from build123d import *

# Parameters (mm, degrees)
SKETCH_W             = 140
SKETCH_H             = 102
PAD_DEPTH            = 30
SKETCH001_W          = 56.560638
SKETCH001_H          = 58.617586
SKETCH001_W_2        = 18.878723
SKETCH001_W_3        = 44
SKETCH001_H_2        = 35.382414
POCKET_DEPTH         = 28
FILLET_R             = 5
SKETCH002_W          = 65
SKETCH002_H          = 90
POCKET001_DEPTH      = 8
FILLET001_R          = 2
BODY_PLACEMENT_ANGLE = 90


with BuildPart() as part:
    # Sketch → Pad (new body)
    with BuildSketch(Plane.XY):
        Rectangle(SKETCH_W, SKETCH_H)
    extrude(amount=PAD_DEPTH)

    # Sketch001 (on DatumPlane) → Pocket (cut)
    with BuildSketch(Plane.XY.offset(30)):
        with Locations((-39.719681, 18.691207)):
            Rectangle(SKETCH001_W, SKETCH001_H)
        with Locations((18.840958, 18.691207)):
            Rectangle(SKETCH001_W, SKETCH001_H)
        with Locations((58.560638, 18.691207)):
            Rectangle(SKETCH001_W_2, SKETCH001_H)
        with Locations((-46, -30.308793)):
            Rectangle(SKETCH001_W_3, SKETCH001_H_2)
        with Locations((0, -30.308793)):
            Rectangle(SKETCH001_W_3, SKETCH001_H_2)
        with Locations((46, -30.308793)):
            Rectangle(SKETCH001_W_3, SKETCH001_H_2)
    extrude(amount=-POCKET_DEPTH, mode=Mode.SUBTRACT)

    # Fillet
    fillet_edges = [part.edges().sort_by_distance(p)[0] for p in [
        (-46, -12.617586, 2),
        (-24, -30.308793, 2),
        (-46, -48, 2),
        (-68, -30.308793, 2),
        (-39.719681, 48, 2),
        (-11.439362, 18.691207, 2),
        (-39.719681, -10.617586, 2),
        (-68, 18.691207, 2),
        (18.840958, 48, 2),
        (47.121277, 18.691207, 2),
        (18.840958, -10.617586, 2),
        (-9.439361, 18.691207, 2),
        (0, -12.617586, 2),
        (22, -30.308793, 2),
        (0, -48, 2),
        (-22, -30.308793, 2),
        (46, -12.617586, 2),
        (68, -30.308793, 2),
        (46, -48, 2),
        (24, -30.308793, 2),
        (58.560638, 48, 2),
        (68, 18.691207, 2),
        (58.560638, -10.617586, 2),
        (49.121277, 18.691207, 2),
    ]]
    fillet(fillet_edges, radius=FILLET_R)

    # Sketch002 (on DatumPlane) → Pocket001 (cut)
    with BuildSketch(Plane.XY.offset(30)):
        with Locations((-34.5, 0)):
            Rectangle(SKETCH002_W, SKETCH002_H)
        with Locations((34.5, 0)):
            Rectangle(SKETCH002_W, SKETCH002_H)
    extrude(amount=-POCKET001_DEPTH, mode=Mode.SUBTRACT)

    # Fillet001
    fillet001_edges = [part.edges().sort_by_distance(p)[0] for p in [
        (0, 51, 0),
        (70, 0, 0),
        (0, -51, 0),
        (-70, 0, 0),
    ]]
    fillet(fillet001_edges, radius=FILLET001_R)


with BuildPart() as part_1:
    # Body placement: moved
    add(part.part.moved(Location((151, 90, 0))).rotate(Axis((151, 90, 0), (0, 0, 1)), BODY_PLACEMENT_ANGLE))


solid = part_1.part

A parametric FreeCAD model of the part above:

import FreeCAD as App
import Part
import Sketcher
from FreeCAD import Vector
Q = App.Units.Quantity


def edges_at(feature, points):
    """Names of the edges that pass closest to the given points."""
    edges = feature.Shape.Edges
    near = lambda p: min(range(len(edges)), key=lambda i: edges[i].distToShape(Part.Vertex(*p))[0])
    return sorted({f"Edge{near(p) + 1}" for p in points})

doc = App.newDocument("Part")
params = doc.addObject("Spreadsheet::Sheet", "Params")
for row, (alias, value) in enumerate([
    ("sketch1_width", "140 mm"),
    ("sketch1_height", "102 mm"),
    ("pad1_length", "30 mm"),
    ("sketch2_width", "44 mm"),
    ("pocket1_length", "28 mm"),
    ("fillet_radius", "5 mm"),
    ("sketch3_width", "65 mm"),
    ("sketch3_height", "90 mm"),
    ("pocket2_length", "8 mm"),
    ("fillet2_radius", "2 mm"),
], start=1):
    params.set(f"A{row}", alias)
    params.set(f"B{row}", "=" + value)
    params.setAlias(f"B{row}", alias)

body = doc.addObject("PartDesign::Body", "Body")

sketch1 = body.newObject("Sketcher::SketchObject", "Sketch")
sketch1.AttachmentSupport = (doc.getObject("XY_Plane"), [""])
sketch1.MapMode = "FlatFace"
sketch1.addGeometry([
    Part.LineSegment(Vector(-70, 51, 0), Vector(-70, -51, 0)),
    Part.LineSegment(Vector(-70, -51, 0), Vector(70, -51, 0)),
    Part.LineSegment(Vector(70, -51, 0), Vector(70, 51, 0)),
    Part.LineSegment(Vector(70, 51, 0), Vector(-70, 51, 0)),
], False)
sketch1.addConstraint([
    Sketcher.Constraint("Coincident", 0, 2, 1, 1),
    Sketcher.Constraint("Coincident", 1, 2, 2, 1),
    Sketcher.Constraint("Coincident", 2, 2, 3, 1),
    Sketcher.Constraint("Coincident", 3, 2, 0, 1),
    Sketcher.Constraint("Vertical", 0),
    Sketcher.Constraint("Horizontal", 1),
    Sketcher.Constraint("Vertical", 2),
    Sketcher.Constraint("Horizontal", 3),
    Sketcher.Constraint("Symmetric", 0, 2, 2, 2, -1, 1),
    Sketcher.Constraint("DistanceX", 1, 1, 1, 2, Q("140 mm")),
    Sketcher.Constraint("DistanceY", 0, 2, 0, 1, Q("102 mm")),
])
sketch1.setExpression("Constraints[9]", "Params.sketch1_width")
sketch1.setExpression("Constraints[10]", "Params.sketch1_height")
pad1 = body.newObject("PartDesign::Pad", "Pad")
pad1.Profile = sketch1
pad1.setExpression("Length", "Params.pad1_length")

sketch2 = body.newObject("Sketcher::SketchObject", "Sketch001")
sketch2.AttachmentSupport = (doc.getObject("XY_Plane"), [""])
sketch2.MapMode = "FlatFace"
sketch2.AttachmentOffset = App.Placement(Vector(0, 0, 30), App.Rotation())
sketch2.addGeometry([
    Part.LineSegment(Vector(-68, 48, 0), Vector(-68, -10.617586, 0)),
    Part.LineSegment(Vector(-68, -10.617586, 0), Vector(-11.439362, -10.617586, 0)),
    Part.LineSegment(Vector(-11.439362, -10.617586, 0), Vector(-11.439362, 48, 0)),
    Part.LineSegment(Vector(-11.439362, 48, 0), Vector(-68, 48, 0)),
    Part.LineSegment(Vector(-9.439361, 48, 0), Vector(-9.439361, -10.617586, 0)),
    Part.LineSegment(Vector(-9.439361, -10.617586, 0), Vector(47.121277, -10.617586, 0)),
    Part.LineSegment(Vector(47.121277, -10.617586, 0), Vector(47.121277, 48, 0)),
    Part.LineSegment(Vector(47.121277, 48, 0), Vector(-9.439361, 48, 0)),
    Part.LineSegment(Vector(49.121277, 48, 0), Vector(49.121277, -10.617586, 0)),
    Part.LineSegment(Vector(49.121277, -10.617586, 0), Vector(68, -10.617586, 0)),
    Part.LineSegment(Vector(68, -10.617586, 0), Vector(68, 48, 0)),
    Part.LineSegment(Vector(68, 48, 0), Vector(49.121277, 48, 0)),
    Part.LineSegment(Vector(-68, -12.617586, 0), Vector(-68, -48, 0)),
    Part.LineSegment(Vector(-68, -48, 0), Vector(-24, -48, 0)),
    Part.LineSegment(Vector(-24, -48, 0), Vector(-24, -12.617586, 0)),
    Part.LineSegment(Vector(-24, -12.617586, 0), Vector(-68, -12.617586, 0)),
    Part.LineSegment(Vector(-22, -12.617586, 0), Vector(-22, -48, 0)),
    Part.LineSegment(Vector(-22, -48, 0), Vector(22, -48, 0)),
    Part.LineSegment(Vector(22, -48, 0), Vector(22, -12.617586, 0)),
    Part.LineSegment(Vector(22, -12.617586, 0), Vector(-22, -12.617586, 0)),
    Part.LineSegment(Vector(24, -12.617586, 0), Vector(24, -48, 0)),
    Part.LineSegment(Vector(24, -48, 0), Vector(68, -48, 0)),
    Part.LineSegment(Vector(68, -48, 0), Vector(68, -12.617586, 0)),
    Part.LineSegment(Vector(68, -12.617586, 0), Vector(24, -12.617586, 0)),
], False)
sketch2.addConstraint([
    Sketcher.Constraint("Coincident", 0, 2, 1, 1),
    Sketcher.Constraint("Coincident", 1, 2, 2, 1),
    Sketcher.Constraint("Coincident", 2, 2, 3, 1),
    Sketcher.Constraint("Coincident", 3, 2, 0, 1),
    Sketcher.Constraint("Coincident", 4, 2, 5, 1),
    Sketcher.Constraint("Coincident", 5, 2, 6, 1),
    Sketcher.Constraint("Coincident", 6, 2, 7, 1),
    Sketcher.Constraint("Coincident", 7, 2, 4, 1),
    Sketcher.Constraint("Coincident", 8, 2, 9, 1),
    Sketcher.Constraint("Coincident", 9, 2, 10, 1),
    Sketcher.Constraint("Coincident", 10, 2, 11, 1),
    Sketcher.Constraint("Coincident", 11, 2, 8, 1),
    Sketcher.Constraint("Coincident", 12, 2, 13, 1),
    Sketcher.Constraint("Coincident", 13, 2, 14, 1),
    Sketcher.Constraint("Coincident", 14, 2, 15, 1),
    Sketcher.Constraint("Coincident", 15, 2, 12, 1),
    Sketcher.Constraint("Coincident", 16, 2, 17, 1),
    Sketcher.Constraint("Coincident", 17, 2, 18, 1),
    Sketcher.Constraint("Coincident", 18, 2, 19, 1),
    Sketcher.Constraint("Coincident", 19, 2, 16, 1),
    Sketcher.Constraint("Coincident", 20, 2, 21, 1),
    Sketcher.Constraint("Coincident", 21, 2, 22, 1),
    Sketcher.Constraint("Coincident", 22, 2, 23, 1),
    Sketcher.Constraint("Coincident", 23, 2, 20, 1),
    Sketcher.Constraint("Vertical", 0),
    Sketcher.Constraint("Horizontal", 1),
    Sketcher.Constraint("Vertical", 2),
    Sketcher.Constraint("Horizontal", 3),
    Sketcher.Constraint("Vertical", 4),
    Sketcher.Constraint("Horizontal", 5),
    Sketcher.Constraint("Vertical", 6),
    Sketcher.Constraint("Horizontal", 7),
    Sketcher.Constraint("Vertical", 8),
    Sketcher.Constraint("Horizontal", 9),
    Sketcher.Constraint("Vertical", 10),
    Sketcher.Constraint("Horizontal", 11),
    Sketcher.Constraint("Vertical", 12),
    Sketcher.Constraint("Horizontal", 13),
    Sketcher.Constraint("Vertical", 14),
    Sketcher.Constraint("Horizontal", 15),
    Sketcher.Constraint("Vertical", 16),
    Sketcher.Constraint("Horizontal", 17),
    Sketcher.Constraint("Vertical", 18),
    Sketcher.Constraint("Horizontal", 19),
    Sketcher.Constraint("Vertical", 20),
    Sketcher.Constraint("Horizontal", 21),
    Sketcher.Constraint("Vertical", 22),
    Sketcher.Constraint("Horizontal", 23),
    Sketcher.Constraint("Symmetric", 10, 2, 12, 2, -1, 1),
    Sketcher.Constraint("Symmetric", 3, 2, 21, 2, -1, 1),
    Sketcher.Constraint("Symmetric", 0, 2, 9, 2, -2),
    Sketcher.Constraint("Symmetric", 13, 2, 20, 2, -2),
    Sketcher.Constraint("Horizontal", 1, 2, 4, 2),
    Sketcher.Constraint("Horizontal", 3, 2, 6, 2),
    Sketcher.Constraint("Horizontal", 13, 2, 16, 2),
    Sketcher.Constraint("Horizontal", 15, 2, 18, 2),
    Sketcher.Constraint("Horizontal", 19, 2, 22, 2),
    Sketcher.Constraint("Equal", 3, 5),
    Sketcher.Constraint("Equal", 15, 17),
    Sketcher.Constraint("DistanceX", 13, 1, 13, 2, Q("44 mm")),
    Sketcher.Constraint("DistanceX", 0, 2, -1, 1, Q("68 mm")),
    Sketcher.Constraint("DistanceY", -1, 1, 2, 2, Q("48 mm")),
    Sketcher.Constraint("DistanceX", 16, 2, -1, 1, Q("22 mm")),
    Sketcher.Constraint("DistanceX", 1, 2, 4, 2, Q("2.000001 mm")),
    Sketcher.Constraint("DistanceX", 5, 2, 8, 2, Q("2 mm")),
    Sketcher.Constraint("DistanceY", 14, 2, 1, 2, Q("2 mm")),
    Sketcher.Constraint("DistanceX", 1, 1, 1, 2, Q("56.560638 mm")),
    Sketcher.Constraint("DistanceY", 0, 2, 0, 1, Q("58.617586 mm")),
])
sketch2.setExpression("Constraints[59]", "Params.sketch2_width")
pocket1 = body.newObject("PartDesign::Pocket", "Pocket")
pocket1.Profile = sketch2
pocket1.setExpression("Length", "Params.pocket1_length")
doc.recompute()

fillet = body.newObject("PartDesign::Fillet", "Fillet")
fillet.Base = (pocket1, edges_at(pocket1, [
    (-46, -12.618, 2),
    (-24, -30.309, 2),
    (-46, -48, 2),
    (-68, -30.309, 2),
    (-39.72, 48, 2),
    (-11.439, 18.691, 2),
    (-39.72, -10.618, 2),
    (-68, 18.691, 2),
    (18.841, 48, 2),
    (47.121, 18.691, 2),
    (18.841, -10.618, 2),
    (-9.439, 18.691, 2),
    (0, -12.618, 2),
    (22, -30.309, 2),
    (0, -48, 2),
    (-22, -30.309, 2),
    (46, -12.618, 2),
    (68, -30.309, 2),
    (46, -48, 2),
    (24, -30.309, 2),
    (58.561, 48, 2),
    (68, 18.691, 2),
    (58.561, -10.618, 2),
    (49.121, 18.691, 2),
]))
fillet.setExpression("Radius", "Params.fillet_radius")

sketch3 = body.newObject("Sketcher::SketchObject", "Sketch002")
sketch3.AttachmentSupport = (doc.getObject("XY_Plane"), [""])
sketch3.MapMode = "FlatFace"
sketch3.AttachmentOffset = App.Placement(Vector(0, 0, 30), App.Rotation())
sketch3.addGeometry([
    Part.LineSegment(Vector(-67, 45, 0), Vector(-67, -45, 0)),
    Part.LineSegment(Vector(-67, -45, 0), Vector(-2, -45, 0)),
    Part.LineSegment(Vector(-2, -45, 0), Vector(-2, 45, 0)),
    Part.LineSegment(Vector(-2, 45, 0), Vector(-67, 45, 0)),
    Part.LineSegment(Vector(2, 45, 0), Vector(2, -45, 0)),
    Part.LineSegment(Vector(2, -45, 0), Vector(67, -45, 0)),
    Part.LineSegment(Vector(67, -45, 0), Vector(67, 45, 0)),
    Part.LineSegment(Vector(67, 45, 0), Vector(2, 45, 0)),
], False)
sketch3.addConstraint([
    Sketcher.Constraint("Coincident", 0, 2, 1, 1),
    Sketcher.Constraint("Coincident", 1, 2, 2, 1),
    Sketcher.Constraint("Coincident", 2, 2, 3, 1),
    Sketcher.Constraint("Coincident", 3, 2, 0, 1),
    Sketcher.Constraint("Coincident", 4, 2, 5, 1),
    Sketcher.Constraint("Coincident", 5, 2, 6, 1),
    Sketcher.Constraint("Coincident", 6, 2, 7, 1),
    Sketcher.Constraint("Coincident", 7, 2, 4, 1),
    Sketcher.Constraint("Vertical", 0),
    Sketcher.Constraint("Horizontal", 1),
    Sketcher.Constraint("Vertical", 2),
    Sketcher.Constraint("Horizontal", 3),
    Sketcher.Constraint("Vertical", 4),
    Sketcher.Constraint("Horizontal", 5),
    Sketcher.Constraint("Vertical", 6),
    Sketcher.Constraint("Horizontal", 7),
    Sketcher.Constraint("Symmetric", 2, 2, 4, 2, -1, 1),
    Sketcher.Constraint("Symmetric", 0, 2, 6, 2, -1, 1),
    Sketcher.Constraint("Horizontal", 1, 2, 4, 2),
    Sketcher.Constraint("DistanceX", 1, 1, 1, 2, Q("65 mm")),
    Sketcher.Constraint("DistanceY", 0, 2, 0, 1, Q("90 mm")),
    Sketcher.Constraint("DistanceX", 0, 2, -1, 1, Q("67 mm")),
])
sketch3.setExpression("Constraints[19]", "Params.sketch3_width")
sketch3.setExpression("Constraints[20]", "Params.sketch3_height")
pocket2 = body.newObject("PartDesign::Pocket", "Pocket001")
pocket2.Profile = sketch3
pocket2.setExpression("Length", "Params.pocket2_length")
doc.recompute()

fillet2 = body.newObject("PartDesign::Fillet", "Fillet001")
fillet2.Base = (pocket2, edges_at(pocket2, [
    (0, 51, 0),
    (70, 0, 0),
    (0, -51, 0),
    (-70, 0, 0),
]))
fillet2.setExpression("Radius", "Params.fillet2_radius")
body2 = doc.addObject("PartDesign::Body", "Body001")
doc.recompute()

body.Placement = App.Placement(Vector(151, 90, 0), App.Rotation(Vector(0, 0, 1), 90))
boolean = body2.newObject("PartDesign::Boolean", "Boolean")
boolean.Type = "Fuse"
boolean.addObjects([body])

doc.recompute()
